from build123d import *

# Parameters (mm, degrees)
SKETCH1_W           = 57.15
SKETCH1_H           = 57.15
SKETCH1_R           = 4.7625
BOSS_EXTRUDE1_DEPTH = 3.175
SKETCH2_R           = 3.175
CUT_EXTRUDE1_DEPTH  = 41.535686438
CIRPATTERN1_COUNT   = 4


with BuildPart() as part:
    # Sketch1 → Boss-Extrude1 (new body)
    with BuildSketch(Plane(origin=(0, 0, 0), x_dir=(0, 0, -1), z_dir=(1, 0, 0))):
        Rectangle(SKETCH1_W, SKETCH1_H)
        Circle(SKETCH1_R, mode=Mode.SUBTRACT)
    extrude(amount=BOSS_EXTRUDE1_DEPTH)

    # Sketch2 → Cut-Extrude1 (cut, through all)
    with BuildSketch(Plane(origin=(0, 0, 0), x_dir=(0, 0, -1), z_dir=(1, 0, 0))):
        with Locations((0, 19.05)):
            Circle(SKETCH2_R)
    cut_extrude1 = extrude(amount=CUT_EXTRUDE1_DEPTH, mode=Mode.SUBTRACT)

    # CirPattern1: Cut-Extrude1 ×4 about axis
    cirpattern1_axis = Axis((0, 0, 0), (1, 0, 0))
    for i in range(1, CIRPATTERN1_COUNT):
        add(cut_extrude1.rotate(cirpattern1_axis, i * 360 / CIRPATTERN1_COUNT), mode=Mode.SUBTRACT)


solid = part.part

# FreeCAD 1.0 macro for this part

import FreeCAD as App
import Part
import Sketcher
from FreeCAD import Vector
Q = App.Units.Quantity


def add_polygon(sketch, points):
    """Adds a closed chain of lines whose ends are joined by coincident constraints."""
    first, n = sketch.GeometryCount, len(points)
    for a, b in zip(points, points[1:] + points[:1]):
        sketch.addGeometry(Part.LineSegment(App.Vector(*a, 0), App.Vector(*b, 0)), False)
    for i in range(n):
        sketch.addConstraint(Sketcher.Constraint("Coincident", first + i, 2, first + (i + 1) % n, 1))

doc = App.newDocument("Part")
body = doc.addObject("PartDesign::Body", "Body")

sketch1 = body.newObject("Sketcher::SketchObject", "Sketch")
sketch1.AttachmentSupport = (doc.getObject("YZ_Plane"), [""])
sketch1.MapMode = "FlatFace"
add_polygon(sketch1, [(28.6, 28.6), (-28.6, 28.6), (-28.6, -28.6), (28.6, -28.6)])
sketch1.addGeometry(Part.Circle(Vector(0, 0, 0), Vector(0, 0, 1), 4.8), False)
sketch1.addConstraint([
    Sketcher.Constraint("Horizontal", 0),
    Sketcher.Constraint("Vertical", 1),
    Sketcher.Constraint("Horizontal", 2),
    Sketcher.Constraint("Vertical", 3),
    Sketcher.Constraint("Coincident", 4, 3, -1, 1),
    Sketcher.Constraint("Symmetric", 0, 2, 2, 2, -1, 1),
    Sketcher.Constraint("Equal", 2, 1),
    Sketcher.Constraint("Diameter", 4, Q("0.375 in")),
    Sketcher.Constraint("DistanceX", 0, 2, 0, 1, Q("2.25 in")),
])
pad1 = body.newObject("PartDesign::Pad", "Pad")
pad1.Profile = sketch1
pad1.Length = Q("0.125 in")

sketch2 = body.newObject("Sketcher::SketchObject", "Sketch001")
sketch2.AttachmentSupport = (doc.getObject("YZ_Plane"), [""])
sketch2.MapMode = "FlatFace"
sketch2.addGeometry(Part.Circle(Vector(19.1, 0, 0), Vector(0, 0, 1), 3.2), False)
sketch2.addConstraint([
    Sketcher.Constraint("PointOnObject", 0, 3, -1),
    Sketcher.Constraint("Diameter", 0, Q("0.25 in")),
    Sketcher.Constraint("DistanceX", -1, 1, 0, 3, Q("0.75 in")),
])
pocket1 = body.newObject("PartDesign::Pocket", "Pocket")
pocket1.Profile = sketch2
pocket1.Type = "ThroughAll"
pocket1.Reversed = True
doc.recompute()

polarpattern = body.newObject("PartDesign::PolarPattern", "PolarPattern")
polarpattern.Originals = [pocket1]
polarpattern.Axis = (doc.getObject("X_Axis"), [""])
polarpattern.Angle = 360
polarpattern.Occurrences = 4
body.Tip = polarpattern

doc.recompute()
